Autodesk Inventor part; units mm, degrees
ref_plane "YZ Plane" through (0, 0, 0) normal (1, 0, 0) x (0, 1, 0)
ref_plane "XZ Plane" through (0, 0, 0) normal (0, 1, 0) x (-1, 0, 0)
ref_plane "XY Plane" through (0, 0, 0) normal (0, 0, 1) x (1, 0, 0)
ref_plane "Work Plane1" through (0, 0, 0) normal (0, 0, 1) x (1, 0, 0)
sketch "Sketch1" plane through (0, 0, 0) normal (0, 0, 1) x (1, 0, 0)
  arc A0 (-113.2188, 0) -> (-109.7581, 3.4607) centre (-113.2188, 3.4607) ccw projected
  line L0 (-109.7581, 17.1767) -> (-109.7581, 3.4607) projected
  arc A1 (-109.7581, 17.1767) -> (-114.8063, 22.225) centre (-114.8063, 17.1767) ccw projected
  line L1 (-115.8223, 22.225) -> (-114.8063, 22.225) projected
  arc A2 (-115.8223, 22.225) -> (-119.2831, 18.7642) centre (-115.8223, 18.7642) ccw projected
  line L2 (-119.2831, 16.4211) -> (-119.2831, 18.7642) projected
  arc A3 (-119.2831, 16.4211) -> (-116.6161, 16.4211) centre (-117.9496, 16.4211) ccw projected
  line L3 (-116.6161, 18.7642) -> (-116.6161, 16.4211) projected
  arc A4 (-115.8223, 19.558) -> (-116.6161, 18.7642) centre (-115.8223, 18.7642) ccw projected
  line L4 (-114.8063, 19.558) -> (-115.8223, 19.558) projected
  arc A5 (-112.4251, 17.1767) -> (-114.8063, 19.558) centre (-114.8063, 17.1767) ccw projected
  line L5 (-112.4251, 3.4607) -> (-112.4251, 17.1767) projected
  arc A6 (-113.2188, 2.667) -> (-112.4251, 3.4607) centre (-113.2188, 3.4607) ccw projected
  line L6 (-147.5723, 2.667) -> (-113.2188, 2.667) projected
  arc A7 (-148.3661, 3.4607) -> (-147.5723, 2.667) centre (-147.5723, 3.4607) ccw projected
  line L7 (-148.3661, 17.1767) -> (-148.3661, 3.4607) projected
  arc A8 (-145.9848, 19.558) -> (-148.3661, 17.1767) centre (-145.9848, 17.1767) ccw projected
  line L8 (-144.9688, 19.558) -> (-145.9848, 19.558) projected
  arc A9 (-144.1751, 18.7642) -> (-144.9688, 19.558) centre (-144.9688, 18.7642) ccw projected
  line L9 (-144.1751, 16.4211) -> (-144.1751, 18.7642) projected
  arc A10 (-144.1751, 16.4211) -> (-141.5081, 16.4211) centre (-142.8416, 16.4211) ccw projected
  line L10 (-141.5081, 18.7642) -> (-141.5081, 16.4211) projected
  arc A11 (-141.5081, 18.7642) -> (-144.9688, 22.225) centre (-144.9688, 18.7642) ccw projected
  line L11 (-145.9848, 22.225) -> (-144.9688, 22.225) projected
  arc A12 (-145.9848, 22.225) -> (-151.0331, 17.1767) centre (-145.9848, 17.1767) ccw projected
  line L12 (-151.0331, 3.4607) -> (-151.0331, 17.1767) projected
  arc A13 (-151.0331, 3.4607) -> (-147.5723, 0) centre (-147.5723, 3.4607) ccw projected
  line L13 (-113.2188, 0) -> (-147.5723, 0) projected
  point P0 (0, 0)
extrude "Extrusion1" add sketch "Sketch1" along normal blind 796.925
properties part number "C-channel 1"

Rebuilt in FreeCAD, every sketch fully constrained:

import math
import FreeCAD as App
import Part
import Sketcher
from FreeCAD import Vector
Q = App.Units.Quantity

doc = App.newDocument("Part")
body = doc.addObject("PartDesign::Body", "Body")

sketch1 = body.newObject("Sketcher::SketchObject", "Sketch")
sketch1.AttachmentSupport = (doc.getObject("XY_Plane"), [""])
sketch1.MapMode = "FlatFace"
sketch1.addGeometry(Part.LineSegment(Vector(-147.5723, 0, 0), Vector(-113.2188, 0, 0)), False)
sketch1.addGeometry(Part.ArcOfCircle(Part.Circle(Vector(-113.2188, 3.4607, 0), Vector(0, 0, 1), 3.4607), math.radians(-90), math.radians(0)), False)
sketch1.addGeometry(Part.LineSegment(Vector(-109.7581, 3.4607, 0), Vector(-109.7581, 17.1767, 0)), False)
sketch1.addGeometry(Part.ArcOfCircle(Part.Circle(Vector(-114.8063, 17.1767, 0), Vector(0, 0, 1), 5.0482), math.radians(0), math.radians(90)), False)
sketch1.addGeometry(Part.LineSegment(Vector(-114.8063, 22.225, 0), Vector(-115.8223, 22.225, 0)), False)
sketch1.addGeometry(Part.ArcOfCircle(Part.Circle(Vector(-115.8223, 18.7642, 0), Vector(0, 0, 1), 3.4608), math.radians(90), math.radians(180)), False)
sketch1.addGeometry(Part.LineSegment(Vector(-119.2831, 18.7642, 0), Vector(-119.2831, 16.4211, 0)), False)
sketch1.addGeometry(Part.ArcOfCircle(Part.Circle(Vector(-117.9496, 16.4211, 0), Vector(0, 0, 1), 1.3335), math.radians(180), math.radians(360)), False)
sketch1.addGeometry(Part.LineSegment(Vector(-116.6161, 16.4211, 0), Vector(-116.6161, 18.7642, 0)), False)
sketch1.addGeometry(Part.ArcOfCircle(Part.Circle(Vector(-115.8223, 18.7642, 0), Vector(0, 0, 1), 0.7938), math.radians(90), math.radians(180)), False)
sketch1.addGeometry(Part.LineSegment(Vector(-115.8223, 19.558, 0), Vector(-114.8063, 19.558, 0)), False)
sketch1.addGeometry(Part.ArcOfCircle(Part.Circle(Vector(-114.8063, 17.1767, 0), Vector(0, 0, 1), 2.3812), math.radians(0), math.radians(90)), False)
sketch1.addGeometry(Part.LineSegment(Vector(-112.4251, 17.1767, 0), Vector(-112.4251, 3.4607, 0)), False)
sketch1.addGeometry(Part.ArcOfCircle(Part.Circle(Vector(-113.2188, 3.4607, 0), Vector(0, 0, 1), 0.7937), math.radians(-90), math.radians(0)), False)
sketch1.addGeometry(Part.LineSegment(Vector(-113.2188, 2.667, 0), Vector(-147.5723, 2.667, 0)), False)
sketch1.addGeometry(Part.ArcOfCircle(Part.Circle(Vector(-147.5723, 3.4607, 0), Vector(0, 0, 1), 0.7938), math.radians(180), math.radians(270)), False)
sketch1.addGeometry(Part.LineSegment(Vector(-148.3661, 3.4607, 0), Vector(-148.3661, 17.1767, 0)), False)
sketch1.addGeometry(Part.ArcOfCircle(Part.Circle(Vector(-145.9848, 17.1767, 0), Vector(0, 0, 1), 2.3813), math.radians(90), math.radians(180)), False)
sketch1.addGeometry(Part.LineSegment(Vector(-145.9848, 19.558, 0), Vector(-144.9688, 19.558, 0)), False)
sketch1.addGeometry(Part.ArcOfCircle(Part.Circle(Vector(-144.9688, 18.7642, 0), Vector(0, 0, 1), 0.7937), math.radians(0), math.radians(90)), False)
sketch1.addGeometry(Part.LineSegment(Vector(-144.1751, 18.7642, 0), Vector(-144.1751, 16.4211, 0)), False)
sketch1.addGeometry(Part.ArcOfCircle(Part.Circle(Vector(-142.8416, 16.4211, 0), Vector(0, 0, 1), 1.3335), math.radians(180), math.radians(360)), False)
sketch1.addGeometry(Part.LineSegment(Vector(-141.5081, 16.4211, 0), Vector(-141.5081, 18.7642, 0)), False)
sketch1.addGeometry(Part.ArcOfCircle(Part.Circle(Vector(-144.9688, 18.7642, 0), Vector(0, 0, 1), 3.4607), math.radians(0), math.radians(90)), False)
sketch1.addGeometry(Part.LineSegment(Vector(-144.9688, 22.225, 0), Vector(-145.9848, 22.225, 0)), False)
sketch1.addGeometry(Part.ArcOfCircle(Part.Circle(Vector(-145.9848, 17.1767, 0), Vector(0, 0, 1), 5.0483), math.radians(90), math.radians(180)), False)
sketch1.addGeometry(Part.LineSegment(Vector(-151.0331, 17.1767, 0), Vector(-151.0331, 3.4607, 0)), False)
sketch1.addGeometry(Part.ArcOfCircle(Part.Circle(Vector(-147.5723, 3.4607, 0), Vector(0, 0, 1), 3.4608), math.radians(180), math.radians(270)), False)
sketch1.addConstraint(Sketcher.Constraint("Tangent", 0, 2, 1, 1))
sketch1.addConstraint(Sketcher.Constraint("Tangent", 1, 2, 2, 1))
sketch1.addConstraint(Sketcher.Constraint("Tangent", 2, 2, 3, 1))
sketch1.addConstraint(Sketcher.Constraint("Tangent", 3, 2, 4, 1))
sketch1.addConstraint(Sketcher.Constraint("Tangent", 4, 2, 5, 1))
sketch1.addConstraint(Sketcher.Constraint("Tangent", 5, 2, 6, 1))
sketch1.addConstraint(Sketcher.Constraint("Tangent", 6, 2, 7, 1))
sketch1.addConstraint(Sketcher.Constraint("Tangent", 7, 2, 8, 1))
sketch1.addConstraint(Sketcher.Constraint("Tangent", 8, 2, 9, 2))
sketch1.addConstraint(Sketcher.Constraint("Tangent", 9, 1, 10, 1))
sketch1.addConstraint(Sketcher.Constraint("Tangent", 10, 2, 11, 2))
sketch1.addConstraint(Sketcher.Constraint("Tangent", 11, 1, 12, 1))
sketch1.addConstraint(Sketcher.Constraint("Tangent", 12, 2, 13, 2))
sketch1.addConstraint(Sketcher.Constraint("Tangent", 13, 1, 14, 1))
sketch1.addConstraint(Sketcher.Constraint("Tangent", 14, 2, 15, 2))
sketch1.addConstraint(Sketcher.Constraint("Tangent", 15, 1, 16, 1))
sketch1.addConstraint(Sketcher.Constraint("Tangent", 16, 2, 17, 2))
sketch1.addConstraint(Sketcher.Constraint("Tangent", 17, 1, 18, 1))
sketch1.addConstraint(Sketcher.Constraint("Tangent", 18, 2, 19, 2))
sketch1.addConstraint(Sketcher.Constraint("Tangent", 19, 1, 20, 1))
sketch1.addConstraint(Sketcher.Constraint("Tangent", 20, 2, 21, 1))
sketch1.addConstraint(Sketcher.Constraint("Tangent", 21, 2, 22, 1))
sketch1.addConstraint(Sketcher.Constraint("Tangent", 22, 2, 23, 1))
sketch1.addConstraint(Sketcher.Constraint("Tangent", 23, 2, 24, 1))
sketch1.addConstraint(Sketcher.Constraint("Tangent", 24, 2, 25, 1))
sketch1.addConstraint(Sketcher.Constraint("Tangent", 25, 2, 26, 1))
sketch1.addConstraint(Sketcher.Constraint("Tangent", 26, 2, 27, 1))
sketch1.addConstraint(Sketcher.Constraint("Tangent", 27, 2, 0, 1))
sketch1.addConstraint(Sketcher.Constraint("Horizontal", 0))
sketch1.addConstraint(Sketcher.Constraint("Vertical", 2))
sketch1.addConstraint(Sketcher.Constraint("Horizontal", 4))
sketch1.addConstraint(Sketcher.Constraint("Vertical", 6))
sketch1.addConstraint(Sketcher.Constraint("Vertical", 8))
sketch1.addConstraint(Sketcher.Constraint("Horizontal", 10))
sketch1.addConstraint(Sketcher.Constraint("Vertical", 12))
sketch1.addConstraint(Sketcher.Constraint("Horizontal", 14))
sketch1.addConstraint(Sketcher.Constraint("Vertical", 16))
sketch1.addConstraint(Sketcher.Constraint("Horizontal", 18))
sketch1.addConstraint(Sketcher.Constraint("Vertical", 20))
sketch1.addConstraint(Sketcher.Constraint("Vertical", 22))
sketch1.addConstraint(Sketcher.Constraint("Horizontal", 24))
sketch1.addConstraint(Sketcher.Constraint("Vertical", 26))
sketch1.addConstraint(Sketcher.Constraint("Coincident", 9, 3, 5, 3))
sketch1.addConstraint(Sketcher.Constraint("Coincident", 11, 3, 3, 3))
sketch1.addConstraint(Sketcher.Constraint("Coincident", 13, 3, 1, 3))
sketch1.addConstraint(Sketcher.Constraint("Coincident", 23, 3, 19, 3))
sketch1.addConstraint(Sketcher.Constraint("Coincident", 25, 3, 17, 3))
sketch1.addConstraint(Sketcher.Constraint("Coincident", 27, 3, 15, 3))
sketch1.addConstraint(Sketcher.Constraint("Equal", 1, 5))
sketch1.addConstraint(Sketcher.Constraint("Equal", 13, 15))
sketch1.addConstraint(Sketcher.Constraint("Equal", 11, 17))
sketch1.addConstraint(Sketcher.Constraint("Equal", 15, 19))
sketch1.addConstraint(Sketcher.Constraint("PointOnObject", 0, 2, -1))
sketch1.addConstraint(Sketcher.Constraint("Horizontal", 11, 3, 17, 3))
sketch1.addConstraint(Sketcher.Constraint("Horizontal", 7, 3, 21, 3))
sketch1.addConstraint(Sketcher.Constraint("Equal", 10, 18))
sketch1.addConstraint(Sketcher.Constraint("Radius", 9, Q("0.031252 in")))
sketch1.addConstraint(Sketcher.Constraint("Radius", 11, Q("0.093748 in")))
sketch1.addConstraint(Sketcher.Constraint("DistanceX", 4, 2, 4, 1, Q("0.04 in")))
sketch1.addConstraint(Sketcher.Constraint("DistanceY", 2, 1, 2, 2, Q("0.54 in")))
sketch1.addConstraint(Sketcher.Constraint("Radius", 7, Q("0.0525 in")))
sketch1.addConstraint(Sketcher.Constraint("DistanceX", 15, 3, 5, 3, Q("1.25 in")))
sketch1.addConstraint(Sketcher.Constraint("DistanceY", 6, 2, 6, 1, 2.343))
sketch1.addConstraint(Sketcher.Constraint("DistanceX", 1, 3, -1, 1, 113.2188))
pad1 = body.newObject("PartDesign::Pad", "Pad")
pad1.Profile = sketch1
pad1.Length = Q("31.375 in")

doc.recompute()
